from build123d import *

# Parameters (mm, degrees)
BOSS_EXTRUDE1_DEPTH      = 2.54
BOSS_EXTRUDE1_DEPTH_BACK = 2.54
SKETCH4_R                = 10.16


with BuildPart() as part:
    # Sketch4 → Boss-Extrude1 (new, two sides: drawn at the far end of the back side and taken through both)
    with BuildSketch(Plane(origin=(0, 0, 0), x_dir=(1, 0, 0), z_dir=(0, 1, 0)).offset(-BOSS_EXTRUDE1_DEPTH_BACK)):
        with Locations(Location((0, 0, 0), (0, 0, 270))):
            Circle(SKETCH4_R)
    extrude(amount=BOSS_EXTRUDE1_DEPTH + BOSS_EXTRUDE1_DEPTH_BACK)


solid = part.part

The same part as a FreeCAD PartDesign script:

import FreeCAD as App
import Part
import Sketcher
from FreeCAD import Vector
Q = App.Units.Quantity

doc = App.newDocument("Part")
params = doc.addObject("Spreadsheet::Sheet", "Params")
for row, (alias, value) in enumerate([
    ("sketch1_diameter", "0.8 in"),
    ("pad1_length", "0.1 in"),
    ("pad1_length2", "0.1 in"),
], start=1):
    params.set(f"A{row}", alias)
    params.set(f"B{row}", "=" + value)
    params.setAlias(f"B{row}", alias)

body = doc.addObject("PartDesign::Body", "Body")

# Sketch on XZ plane
sketch1 = doc.addObject("Sketcher::SketchObject", "Sketch")
body.addObject(sketch1)
sketch1.AttachmentSupport = (doc.XZ_Plane, [""])
sketch1.MapMode = "FlatFace"
sketch1.addGeometry(Part.Circle(Vector(0, 0, 0), Vector(0, 0, 1), 10), False)
sketch1.addConstraint(Sketcher.Constraint("Coincident", 0, 3, -1, 1))
sketch1.addConstraint(Sketcher.Constraint("Diameter", 0, Q("0.8 in")))
sketch1.setExpression("Constraints[1]", "Params.sketch1_diameter")
pad1 = doc.addObject("PartDesign::Pad", "Pad")
body.addObject(pad1)
pad1.Profile = sketch1
pad1.Type = "TwoLengths"
pad1.setExpression("Length", "Params.pad1_length")
pad1.setExpression("Length2", "Params.pad1_length2")
pad1.Reversed = True

doc.recompute()
